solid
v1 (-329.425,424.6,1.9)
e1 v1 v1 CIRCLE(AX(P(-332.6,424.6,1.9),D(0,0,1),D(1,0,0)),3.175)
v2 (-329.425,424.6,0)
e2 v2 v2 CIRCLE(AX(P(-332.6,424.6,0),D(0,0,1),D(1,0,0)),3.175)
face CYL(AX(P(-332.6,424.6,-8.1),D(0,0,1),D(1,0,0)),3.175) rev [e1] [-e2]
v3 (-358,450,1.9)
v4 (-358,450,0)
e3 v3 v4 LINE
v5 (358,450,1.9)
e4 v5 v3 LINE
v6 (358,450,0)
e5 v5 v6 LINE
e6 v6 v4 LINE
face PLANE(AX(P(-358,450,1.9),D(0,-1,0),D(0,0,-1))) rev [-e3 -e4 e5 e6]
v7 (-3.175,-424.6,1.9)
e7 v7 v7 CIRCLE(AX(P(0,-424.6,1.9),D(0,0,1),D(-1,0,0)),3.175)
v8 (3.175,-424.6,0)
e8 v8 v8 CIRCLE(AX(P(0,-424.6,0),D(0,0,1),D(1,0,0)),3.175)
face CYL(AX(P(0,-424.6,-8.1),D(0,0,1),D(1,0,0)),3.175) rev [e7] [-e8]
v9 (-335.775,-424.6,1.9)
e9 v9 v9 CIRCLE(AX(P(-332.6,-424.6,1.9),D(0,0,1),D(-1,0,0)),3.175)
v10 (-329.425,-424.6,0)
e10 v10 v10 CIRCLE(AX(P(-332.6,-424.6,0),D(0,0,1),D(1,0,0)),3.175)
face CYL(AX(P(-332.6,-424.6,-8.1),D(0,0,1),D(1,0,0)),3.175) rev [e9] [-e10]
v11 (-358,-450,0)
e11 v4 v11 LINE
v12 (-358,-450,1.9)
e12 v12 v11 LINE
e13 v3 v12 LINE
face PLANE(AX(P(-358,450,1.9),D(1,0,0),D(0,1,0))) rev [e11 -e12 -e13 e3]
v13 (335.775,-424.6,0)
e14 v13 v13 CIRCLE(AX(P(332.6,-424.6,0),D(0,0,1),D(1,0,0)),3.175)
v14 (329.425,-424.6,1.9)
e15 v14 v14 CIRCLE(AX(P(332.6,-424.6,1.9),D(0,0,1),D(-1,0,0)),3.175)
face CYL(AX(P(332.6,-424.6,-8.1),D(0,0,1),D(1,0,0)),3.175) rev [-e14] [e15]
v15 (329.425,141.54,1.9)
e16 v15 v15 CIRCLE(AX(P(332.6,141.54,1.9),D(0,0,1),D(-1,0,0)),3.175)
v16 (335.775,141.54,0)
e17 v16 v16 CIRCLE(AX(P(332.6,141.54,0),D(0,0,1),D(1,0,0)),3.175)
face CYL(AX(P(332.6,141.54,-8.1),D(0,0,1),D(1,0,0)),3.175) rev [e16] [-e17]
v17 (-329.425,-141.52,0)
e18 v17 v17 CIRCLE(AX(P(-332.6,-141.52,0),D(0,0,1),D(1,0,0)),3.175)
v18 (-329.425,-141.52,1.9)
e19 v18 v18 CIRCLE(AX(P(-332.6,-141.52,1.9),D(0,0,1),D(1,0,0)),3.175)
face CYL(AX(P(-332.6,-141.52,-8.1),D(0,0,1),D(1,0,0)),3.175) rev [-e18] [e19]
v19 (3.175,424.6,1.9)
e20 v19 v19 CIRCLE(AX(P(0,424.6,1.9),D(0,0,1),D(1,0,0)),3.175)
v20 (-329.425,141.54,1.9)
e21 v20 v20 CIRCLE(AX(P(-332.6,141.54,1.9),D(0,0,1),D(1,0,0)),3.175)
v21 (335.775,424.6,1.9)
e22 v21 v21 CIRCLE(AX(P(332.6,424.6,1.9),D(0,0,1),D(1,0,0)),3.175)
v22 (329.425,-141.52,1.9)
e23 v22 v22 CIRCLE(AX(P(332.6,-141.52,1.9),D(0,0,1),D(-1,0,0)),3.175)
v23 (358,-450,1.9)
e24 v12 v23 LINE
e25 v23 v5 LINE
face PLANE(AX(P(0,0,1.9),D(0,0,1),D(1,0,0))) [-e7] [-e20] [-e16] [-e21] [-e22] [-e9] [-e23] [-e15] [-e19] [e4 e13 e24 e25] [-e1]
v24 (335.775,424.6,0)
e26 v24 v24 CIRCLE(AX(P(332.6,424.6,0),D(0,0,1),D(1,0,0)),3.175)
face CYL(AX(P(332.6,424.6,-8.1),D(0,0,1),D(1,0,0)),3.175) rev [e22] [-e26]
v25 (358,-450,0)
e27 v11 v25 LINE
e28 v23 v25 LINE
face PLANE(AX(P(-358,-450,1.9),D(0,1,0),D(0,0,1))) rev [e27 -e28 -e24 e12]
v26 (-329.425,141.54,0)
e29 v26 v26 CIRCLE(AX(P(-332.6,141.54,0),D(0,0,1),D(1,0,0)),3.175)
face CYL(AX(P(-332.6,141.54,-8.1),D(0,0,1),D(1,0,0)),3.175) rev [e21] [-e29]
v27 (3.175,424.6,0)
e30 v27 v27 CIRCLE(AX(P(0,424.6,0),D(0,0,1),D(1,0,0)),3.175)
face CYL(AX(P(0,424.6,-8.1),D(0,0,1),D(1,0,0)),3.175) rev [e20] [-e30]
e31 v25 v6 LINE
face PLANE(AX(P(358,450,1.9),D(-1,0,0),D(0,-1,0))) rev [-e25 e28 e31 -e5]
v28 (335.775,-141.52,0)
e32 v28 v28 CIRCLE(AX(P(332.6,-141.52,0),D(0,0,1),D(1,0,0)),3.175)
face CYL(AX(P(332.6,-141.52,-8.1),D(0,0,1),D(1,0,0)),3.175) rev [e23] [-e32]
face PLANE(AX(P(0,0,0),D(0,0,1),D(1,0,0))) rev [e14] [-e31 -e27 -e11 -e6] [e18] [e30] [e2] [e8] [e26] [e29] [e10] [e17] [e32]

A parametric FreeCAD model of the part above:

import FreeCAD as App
import Part
import Sketcher
from FreeCAD import Vector

doc = App.newDocument("Part")
body = doc.addObject("PartDesign::Body", "Body")

# Sketch on XY plane
sketch1 = body.newObject("Sketcher::SketchObject", "Sketch")
sketch1.AttachmentSupport = (doc.getObject("XY_Plane"), [""])
sketch1.MapMode = "FlatFace"
sketch1.addGeometry([
    Part.LineSegment(Vector(-358, 450, 0), Vector(-358, -450, 0)),
    Part.LineSegment(Vector(-358, -450, 0), Vector(358, -450, 0)),
    Part.LineSegment(Vector(358, -450, 0), Vector(358, 450, 0)),
    Part.LineSegment(Vector(358, 450, 0), Vector(-358, 450, 0)),
], False)
sketch1.addConstraint([
    Sketcher.Constraint("Coincident", 0, 2, 1, 1),
    Sketcher.Constraint("Coincident", 1, 2, 2, 1),
    Sketcher.Constraint("Coincident", 2, 2, 3, 1),
    Sketcher.Constraint("Coincident", 3, 2, 0, 1),
    Sketcher.Constraint("Vertical", 0),
    Sketcher.Constraint("Horizontal", 1),
    Sketcher.Constraint("Vertical", 2),
    Sketcher.Constraint("Horizontal", 3),
    Sketcher.Constraint("Symmetric", 0, 2, 2, 2, -1, 1),
    Sketcher.Constraint("DistanceX", 1, 1, 1, 2, 716.0),
    Sketcher.Constraint("DistanceY", 0, 2, 0, 1, 900.0),
])
pad1 = body.newObject("PartDesign::Pad", "Pad")
pad1.Profile = sketch1
pad1.Length = 1.9

# Sketch on XY plane
sketch2 = body.newObject("Sketcher::SketchObject", "Sketch001")
sketch2.AttachmentSupport = (doc.getObject("XY_Plane"), [""])
sketch2.MapMode = "FlatFace"
sketch2.AttachmentOffset = App.Placement(Vector(0, 0, 1.9), App.Rotation())
sketch2.addGeometry([
    Part.Circle(Vector(-332.6, 424.6, 0), Vector(0, 0, 1), 3.2),  # 0
    Part.Circle(Vector(332.6, 424.6, 0), Vector(0, 0, 1), 3.2),  # 1
    Part.Circle(Vector(0, 424.6, 0), Vector(0, 0, 1), 3.2),  # 2
    Part.Circle(Vector(332.6, -424.6, 0), Vector(0, 0, 1), 3.2),  # 3
    Part.Circle(Vector(0, -424.6, 0), Vector(0, 0, 1), 3.2),  # 4
    Part.Circle(Vector(-332.6, -424.6, 0), Vector(0, 0, 1), 3.2),  # 5
    Part.Circle(Vector(-332.6, 141.5, 0), Vector(0, 0, 1), 3.2),  # 6
    Part.Circle(Vector(-332.6, -141.5, 0), Vector(0, 0, 1), 3.2),  # 7
    Part.Circle(Vector(332.6, -141.5, 0), Vector(0, 0, 1), 3.2),  # 8
    Part.Circle(Vector(332.6, 141.5, 0), Vector(0, 0, 1), 3.2),  # 9
], False)
sketch2.addConstraint([
    Sketcher.Constraint("Equal", 0, 1),
    Sketcher.Constraint("Equal", 1, 2),
    Sketcher.Constraint("Equal", 2, 3),
    Sketcher.Constraint("Equal", 3, 4),
    Sketcher.Constraint("Equal", 4, 5),
    Sketcher.Constraint("Equal", 5, 6),
    Sketcher.Constraint("Equal", 6, 7),
    Sketcher.Constraint("Equal", 7, 8),
    Sketcher.Constraint("Equal", 8, 9),
    Sketcher.Constraint("Symmetric", 0, 3, 3, 3, -1, 1),
    Sketcher.Constraint("Symmetric", 2, 3, 4, 3, -1, 1),
    Sketcher.Constraint("Symmetric", 1, 3, 5, 3, -1, 1),
    Sketcher.Constraint("Symmetric", 0, 3, 1, 3, -2),
    Sketcher.Constraint("Symmetric", 7, 3, 8, 3, -2),
    Sketcher.Constraint("Symmetric", 6, 3, 9, 3, -2),
    Sketcher.Constraint("PointOnObject", 2, 3, -2),
    Sketcher.Constraint("Horizontal", 1, 3, 2, 3),
    Sketcher.Constraint("Vertical", 5, 3, 6, 3),
    Sketcher.Constraint("Vertical", 6, 3, 7, 3),
    Sketcher.Constraint("Diameter", 0, 6.35),
    Sketcher.Constraint("DistanceX", 0, 3, -1, 1, 332.6),
    Sketcher.Constraint("DistanceY", -1, 1, 0, 3, 424.6),
    Sketcher.Constraint("DistanceY", -1, 1, 6, 3, 141.54),
    Sketcher.Constraint("DistanceY", 7, 3, -1, 1, 141.52),
])
pocket1 = body.newObject("PartDesign::Pocket", "Pocket")
pocket1.Profile = sketch2
pocket1.Length = 10

doc.recompute()
